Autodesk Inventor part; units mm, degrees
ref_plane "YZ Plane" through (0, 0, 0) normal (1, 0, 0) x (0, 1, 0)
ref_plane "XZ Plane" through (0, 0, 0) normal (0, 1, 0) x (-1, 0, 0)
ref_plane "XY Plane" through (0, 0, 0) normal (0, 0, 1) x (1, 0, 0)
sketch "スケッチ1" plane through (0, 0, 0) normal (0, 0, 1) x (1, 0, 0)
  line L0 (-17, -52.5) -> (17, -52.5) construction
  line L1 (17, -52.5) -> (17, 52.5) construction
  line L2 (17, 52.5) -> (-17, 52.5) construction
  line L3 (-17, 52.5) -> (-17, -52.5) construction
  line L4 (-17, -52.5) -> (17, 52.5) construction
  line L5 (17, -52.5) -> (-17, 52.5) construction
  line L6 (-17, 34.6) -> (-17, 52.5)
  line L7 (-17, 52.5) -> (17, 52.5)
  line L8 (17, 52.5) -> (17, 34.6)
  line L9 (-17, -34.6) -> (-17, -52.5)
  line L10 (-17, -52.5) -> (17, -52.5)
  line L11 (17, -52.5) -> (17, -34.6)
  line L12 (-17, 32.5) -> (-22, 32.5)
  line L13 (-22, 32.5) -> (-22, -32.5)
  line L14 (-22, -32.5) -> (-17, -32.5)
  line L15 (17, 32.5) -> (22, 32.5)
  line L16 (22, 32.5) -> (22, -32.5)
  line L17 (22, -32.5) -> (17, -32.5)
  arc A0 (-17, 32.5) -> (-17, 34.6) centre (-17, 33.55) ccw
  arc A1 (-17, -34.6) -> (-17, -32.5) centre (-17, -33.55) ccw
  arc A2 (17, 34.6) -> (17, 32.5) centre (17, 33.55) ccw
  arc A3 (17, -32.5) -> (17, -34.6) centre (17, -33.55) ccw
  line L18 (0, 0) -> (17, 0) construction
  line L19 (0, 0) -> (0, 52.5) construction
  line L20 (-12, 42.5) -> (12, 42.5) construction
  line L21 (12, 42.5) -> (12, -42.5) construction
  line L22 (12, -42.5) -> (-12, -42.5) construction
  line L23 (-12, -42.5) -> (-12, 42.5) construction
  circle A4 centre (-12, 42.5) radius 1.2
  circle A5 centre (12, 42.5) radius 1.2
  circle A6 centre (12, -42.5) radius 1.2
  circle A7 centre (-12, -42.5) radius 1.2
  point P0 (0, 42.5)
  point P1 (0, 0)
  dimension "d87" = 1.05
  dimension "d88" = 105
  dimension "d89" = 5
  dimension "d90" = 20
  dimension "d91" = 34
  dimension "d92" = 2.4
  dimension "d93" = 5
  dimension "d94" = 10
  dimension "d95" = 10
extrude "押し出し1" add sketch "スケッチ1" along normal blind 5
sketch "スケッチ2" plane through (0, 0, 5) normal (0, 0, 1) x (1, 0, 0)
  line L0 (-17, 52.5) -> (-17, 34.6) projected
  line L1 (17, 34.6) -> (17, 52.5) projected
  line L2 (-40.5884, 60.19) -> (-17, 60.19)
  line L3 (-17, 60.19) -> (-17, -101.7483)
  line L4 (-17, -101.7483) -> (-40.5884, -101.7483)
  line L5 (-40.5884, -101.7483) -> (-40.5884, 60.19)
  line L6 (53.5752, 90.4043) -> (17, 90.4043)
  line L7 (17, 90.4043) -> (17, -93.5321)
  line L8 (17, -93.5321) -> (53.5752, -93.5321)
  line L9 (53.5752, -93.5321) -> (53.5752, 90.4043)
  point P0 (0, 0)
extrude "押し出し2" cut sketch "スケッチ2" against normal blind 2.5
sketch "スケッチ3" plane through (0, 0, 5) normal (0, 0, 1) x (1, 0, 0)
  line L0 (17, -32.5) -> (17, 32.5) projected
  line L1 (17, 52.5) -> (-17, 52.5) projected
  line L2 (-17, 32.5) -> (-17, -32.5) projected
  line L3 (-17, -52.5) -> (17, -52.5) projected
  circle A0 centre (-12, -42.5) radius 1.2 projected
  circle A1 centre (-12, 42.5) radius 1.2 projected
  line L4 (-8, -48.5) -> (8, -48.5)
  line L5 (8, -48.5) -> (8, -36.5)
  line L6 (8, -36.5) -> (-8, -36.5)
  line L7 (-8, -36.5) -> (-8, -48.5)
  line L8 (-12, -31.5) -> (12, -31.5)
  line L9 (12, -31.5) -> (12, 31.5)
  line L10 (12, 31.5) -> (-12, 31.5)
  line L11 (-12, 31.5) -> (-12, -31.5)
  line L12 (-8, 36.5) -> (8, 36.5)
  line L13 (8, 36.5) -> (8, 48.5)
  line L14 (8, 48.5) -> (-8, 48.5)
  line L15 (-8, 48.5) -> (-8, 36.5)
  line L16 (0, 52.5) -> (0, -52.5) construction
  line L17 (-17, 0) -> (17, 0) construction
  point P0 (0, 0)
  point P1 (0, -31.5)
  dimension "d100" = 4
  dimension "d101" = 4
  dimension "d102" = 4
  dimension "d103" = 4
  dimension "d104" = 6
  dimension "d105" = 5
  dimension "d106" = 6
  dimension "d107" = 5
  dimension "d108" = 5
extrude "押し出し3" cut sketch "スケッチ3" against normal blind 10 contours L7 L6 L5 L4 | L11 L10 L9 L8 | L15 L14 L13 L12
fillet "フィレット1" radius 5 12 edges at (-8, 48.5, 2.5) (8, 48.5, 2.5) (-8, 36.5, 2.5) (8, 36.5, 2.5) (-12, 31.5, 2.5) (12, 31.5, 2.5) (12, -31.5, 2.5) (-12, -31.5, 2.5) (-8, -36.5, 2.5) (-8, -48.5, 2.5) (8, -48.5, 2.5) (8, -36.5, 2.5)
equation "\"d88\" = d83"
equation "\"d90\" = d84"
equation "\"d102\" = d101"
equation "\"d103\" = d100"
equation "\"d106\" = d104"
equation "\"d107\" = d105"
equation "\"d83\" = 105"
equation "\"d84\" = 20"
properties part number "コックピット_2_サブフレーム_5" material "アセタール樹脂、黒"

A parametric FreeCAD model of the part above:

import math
import FreeCAD as App
import Part
import Sketcher
Q = App.Units.Quantity


def edges_at(feature, points):
    """Names of the edges that pass closest to the given points."""
    edges = feature.Shape.Edges
    near = lambda p: min(range(len(edges)), key=lambda i: edges[i].distToShape(Part.Vertex(*p))[0])
    return sorted({f"Edge{near(p) + 1}" for p in points})

doc = App.newDocument("Part")
body = doc.addObject("PartDesign::Body", "Body")

sketch1 = body.newObject("Sketcher::SketchObject", "Sketch")
sketch1.AttachmentSupport = (doc.getObject("XY_Plane"), [""])
sketch1.MapMode = "FlatFace"
sketch1.addGeometry(Part.LineSegment(App.Vector(-17, 52.5, 0), App.Vector(-17, 34.6, 0)), False)
sketch1.addGeometry(Part.ArcOfCircle(Part.Circle(App.Vector(-17, 33.55, 0), App.Vector(0, 0, 1), 1.05), math.radians(-90), math.radians(90)), False)
sketch1.addGeometry(Part.LineSegment(App.Vector(-17, 32.5, 0), App.Vector(-22, 32.5, 0)), False)
sketch1.addGeometry(Part.LineSegment(App.Vector(-22, 32.5, 0), App.Vector(-22, -32.5, 0)), False)
sketch1.addGeometry(Part.LineSegment(App.Vector(-22, -32.5, 0), App.Vector(-17, -32.5, 0)), False)
sketch1.addGeometry(Part.ArcOfCircle(Part.Circle(App.Vector(-17, -33.55, 0), App.Vector(0, 0, 1), 1.05), math.radians(-90), math.radians(90)), False)
sketch1.addGeometry(Part.LineSegment(App.Vector(-17, -34.6, 0), App.Vector(-17, -52.5, 0)), False)
sketch1.addGeometry(Part.LineSegment(App.Vector(-17, -52.5, 0), App.Vector(17, -52.5, 0)), False)
sketch1.addGeometry(Part.LineSegment(App.Vector(17, -52.5, 0), App.Vector(17, -34.6, 0)), False)
sketch1.addGeometry(Part.ArcOfCircle(Part.Circle(App.Vector(17, -33.55, 0), App.Vector(0, 0, 1), 1.05), math.radians(90), math.radians(270)), False)
sketch1.addGeometry(Part.LineSegment(App.Vector(17, -32.5, 0), App.Vector(22, -32.5, 0)), False)
sketch1.addGeometry(Part.LineSegment(App.Vector(22, -32.5, 0), App.Vector(22, 32.5, 0)), False)
sketch1.addGeometry(Part.LineSegment(App.Vector(22, 32.5, 0), App.Vector(17, 32.5, 0)), False)
sketch1.addGeometry(Part.ArcOfCircle(Part.Circle(App.Vector(17, 33.55, 0), App.Vector(0, 0, 1), 1.05), math.radians(90), math.radians(270)), False)
sketch1.addGeometry(Part.LineSegment(App.Vector(17, 34.6, 0), App.Vector(17, 52.5, 0)), False)
sketch1.addGeometry(Part.LineSegment(App.Vector(17, 52.5, 0), App.Vector(-17, 52.5, 0)), False)
sketch1.addGeometry(Part.Circle(App.Vector(-12, -42.5, 0), App.Vector(0, 0, 1), 1.2), False)
sketch1.addGeometry(Part.Circle(App.Vector(12, -42.5, 0), App.Vector(0, 0, 1), 1.2), False)
sketch1.addGeometry(Part.Circle(App.Vector(-12, 42.5, 0), App.Vector(0, 0, 1), 1.2), False)
sketch1.addGeometry(Part.Circle(App.Vector(12, 42.5, 0), App.Vector(0, 0, 1), 1.2), False)
sketch1.addConstraint(Sketcher.Constraint("Coincident", 0, 2, 1, 2))
sketch1.addConstraint(Sketcher.Constraint("Tangent", 1, 1, 2, 1))
sketch1.addConstraint(Sketcher.Constraint("Coincident", 2, 2, 3, 1))
sketch1.addConstraint(Sketcher.Constraint("Coincident", 3, 2, 4, 1))
sketch1.addConstraint(Sketcher.Constraint("Tangent", 4, 2, 5, 2))
sketch1.addConstraint(Sketcher.Constraint("Coincident", 5, 1, 6, 1))
sketch1.addConstraint(Sketcher.Constraint("Coincident", 6, 2, 7, 1))
sketch1.addConstraint(Sketcher.Constraint("Coincident", 7, 2, 8, 1))
sketch1.addConstraint(Sketcher.Constraint("Coincident", 8, 2, 9, 2))
sketch1.addConstraint(Sketcher.Constraint("Tangent", 9, 1, 10, 1))
sketch1.addConstraint(Sketcher.Constraint("Coincident", 10, 2, 11, 1))
sketch1.addConstraint(Sketcher.Constraint("Coincident", 11, 2, 12, 1))
sketch1.addConstraint(Sketcher.Constraint("Tangent", 12, 2, 13, 2))
sketch1.addConstraint(Sketcher.Constraint("Coincident", 13, 1, 14, 1))
sketch1.addConstraint(Sketcher.Constraint("Coincident", 14, 2, 15, 1))
sketch1.addConstraint(Sketcher.Constraint("Coincident", 15, 2, 0, 1))
sketch1.addConstraint(Sketcher.Constraint("Vertical", 0))
sketch1.addConstraint(Sketcher.Constraint("Horizontal", 2))
sketch1.addConstraint(Sketcher.Constraint("Vertical", 3))
sketch1.addConstraint(Sketcher.Constraint("Horizontal", 4))
sketch1.addConstraint(Sketcher.Constraint("Vertical", 6))
sketch1.addConstraint(Sketcher.Constraint("Horizontal", 7))
sketch1.addConstraint(Sketcher.Constraint("Vertical", 8))
sketch1.addConstraint(Sketcher.Constraint("Horizontal", 10))
sketch1.addConstraint(Sketcher.Constraint("Vertical", 11))
sketch1.addConstraint(Sketcher.Constraint("Horizontal", 12))
sketch1.addConstraint(Sketcher.Constraint("Vertical", 14))
sketch1.addConstraint(Sketcher.Constraint("Horizontal", 15))
sketch1.addConstraint(Sketcher.Constraint("Equal", 1, 5))
sketch1.addConstraint(Sketcher.Constraint("Equal", 5, 9))
sketch1.addConstraint(Sketcher.Constraint("Equal", 9, 13))
sketch1.addConstraint(Sketcher.Constraint("Equal", 16, 17))
sketch1.addConstraint(Sketcher.Constraint("Equal", 17, 18))
sketch1.addConstraint(Sketcher.Constraint("Equal", 18, 19))
sketch1.addConstraint(Sketcher.Constraint("Symmetric", 1, 3, 9, 3, -1, 1))
sketch1.addConstraint(Sketcher.Constraint("Symmetric", 5, 3, 13, 3, -1, 1))
sketch1.addConstraint(Sketcher.Constraint("Symmetric", 17, 3, 18, 3, -1, 1))
sketch1.addConstraint(Sketcher.Constraint("Symmetric", 16, 3, 19, 3, -1, 1))
sketch1.addConstraint(Sketcher.Constraint("Symmetric", 6, 2, 14, 2, -1, 1))
sketch1.addConstraint(Sketcher.Constraint("Symmetric", 5, 3, 9, 3, -2))
sketch1.addConstraint(Sketcher.Constraint("Symmetric", 16, 3, 17, 3, -2))
sketch1.addConstraint(Sketcher.Constraint("Vertical", 5, 3, 0, 2))
sketch1.addConstraint(Sketcher.Constraint("Vertical", 4, 2, 5, 1))
sketch1.addConstraint(Sketcher.Constraint("Vertical", 13, 3, 7, 2))
sketch1.addConstraint(Sketcher.Constraint("Equal", 4, 10))
sketch1.addConstraint(Sketcher.Constraint("Diameter", 16, Q("2.4 mm")))
sketch1.addConstraint(Sketcher.Constraint("DistanceX", 2, 2, 2, 1, Q("5 mm")))
sketch1.addConstraint(Sketcher.Constraint("DistanceX", 7, 1, 7, 2, Q("34 mm")))
sketch1.addConstraint(Sketcher.Constraint("Radius", 1, Q("1.05 mm")))
sketch1.addConstraint(Sketcher.Constraint("DistanceX", 5, 3, 16, 3, Q("5 mm")))
sketch1.addConstraint(Sketcher.Constraint("DistanceY", 1, 1, 18, 3, Q("10 mm")))
sketch1.addConstraint(Sketcher.Constraint("DistanceY", 6, 2, 16, 3, Q("10 mm")))
sketch1.addConstraint(Sketcher.Constraint("DistanceY", 3, 2, 3, 1, Q("65 mm")))
pad1 = body.newObject("PartDesign::Pad", "Pad")
pad1.Profile = sketch1
pad1.Length = 5

sketch2 = body.newObject("Sketcher::SketchObject", "Sketch001")
sketch2.AttachmentSupport = (doc.getObject("XY_Plane"), [""])
sketch2.MapMode = "FlatFace"
sketch2.AttachmentOffset = App.Placement(App.Vector(0, 0, 5), App.Rotation())
sketch2.addGeometry(Part.LineSegment(App.Vector(-17, -101.7483, 0), App.Vector(-17, 60.19, 0)), False)
sketch2.addGeometry(Part.LineSegment(App.Vector(-17, 60.19, 0), App.Vector(-40.5884, 60.19, 0)), False)
sketch2.addGeometry(Part.LineSegment(App.Vector(-40.5884, 60.19, 0), App.Vector(-40.5884, -101.7483, 0)), False)
sketch2.addGeometry(Part.LineSegment(App.Vector(-40.5884, -101.7483, 0), App.Vector(-17, -101.7483, 0)), False)
sketch2.addGeometry(Part.LineSegment(App.Vector(17, 90.4043, 0), App.Vector(17, -93.5321, 0)), False)
sketch2.addGeometry(Part.LineSegment(App.Vector(17, -93.5321, 0), App.Vector(53.5752, -93.5321, 0)), False)
sketch2.addGeometry(Part.LineSegment(App.Vector(53.5752, -93.5321, 0), App.Vector(53.5752, 90.4043, 0)), False)
sketch2.addGeometry(Part.LineSegment(App.Vector(53.5752, 90.4043, 0), App.Vector(17, 90.4043, 0)), False)
sketch2.addConstraint(Sketcher.Constraint("Coincident", 0, 2, 1, 1))
sketch2.addConstraint(Sketcher.Constraint("Coincident", 1, 2, 2, 1))
sketch2.addConstraint(Sketcher.Constraint("Coincident", 2, 2, 3, 1))
sketch2.addConstraint(Sketcher.Constraint("Coincident", 3, 2, 0, 1))
sketch2.addConstraint(Sketcher.Constraint("Coincident", 4, 2, 5, 1))
sketch2.addConstraint(Sketcher.Constraint("Coincident", 5, 2, 6, 1))
sketch2.addConstraint(Sketcher.Constraint("Coincident", 6, 2, 7, 1))
sketch2.addConstraint(Sketcher.Constraint("Coincident", 7, 2, 4, 1))
sketch2.addConstraint(Sketcher.Constraint("Vertical", 0))
sketch2.addConstraint(Sketcher.Constraint("Horizontal", 1))
sketch2.addConstraint(Sketcher.Constraint("Vertical", 2))
sketch2.addConstraint(Sketcher.Constraint("Horizontal", 3))
sketch2.addConstraint(Sketcher.Constraint("Vertical", 4))
sketch2.addConstraint(Sketcher.Constraint("Horizontal", 5))
sketch2.addConstraint(Sketcher.Constraint("Vertical", 6))
sketch2.addConstraint(Sketcher.Constraint("Horizontal", 7))
sketch2.addConstraint(Sketcher.Constraint("DistanceX", 0, 2, -1, 1, Q("17 mm")))
sketch2.addConstraint(Sketcher.Constraint("DistanceX", -1, 1, 4, 2, Q("17 mm")))
sketch2.addConstraint(Sketcher.Constraint("DistanceY", -1, 1, 0, 2, Q("60.19 mm")))
sketch2.addConstraint(Sketcher.Constraint("DistanceX", 1, 2, 1, 1, Q("23.5884 mm")))
sketch2.addConstraint(Sketcher.Constraint("DistanceX", 5, 1, 5, 2, Q("36.5752 mm")))
sketch2.addConstraint(Sketcher.Constraint("DistanceY", 0, 1, 0, 2, Q("161.9383 mm")))
sketch2.addConstraint(Sketcher.Constraint("DistanceY", 4, 2, 4, 1, Q("183.9364 mm")))
sketch2.addConstraint(Sketcher.Constraint("DistanceY", 4, 2, -1, 1, Q("93.532 mm")))
pocket1 = body.newObject("PartDesign::Pocket", "Pocket")
pocket1.Profile = sketch2
pocket1.Length = 2.5

sketch3 = body.newObject("Sketcher::SketchObject", "Sketch002")
sketch3.AttachmentSupport = (doc.getObject("XY_Plane"), [""])
sketch3.MapMode = "FlatFace"
sketch3.AttachmentOffset = App.Placement(App.Vector(0, 0, 5), App.Rotation())
sketch3.addGeometry(Part.LineSegment(App.Vector(-8, -36.5, 0), App.Vector(-8, -48.5, 0)), False)
sketch3.addGeometry(Part.LineSegment(App.Vector(-8, -48.5, 0), App.Vector(8, -48.5, 0)), False)
sketch3.addGeometry(Part.LineSegment(App.Vector(8, -48.5, 0), App.Vector(8, -36.5, 0)), False)
sketch3.addGeometry(Part.LineSegment(App.Vector(8, -36.5, 0), App.Vector(-8, -36.5, 0)), False)
sketch3.addGeometry(Part.LineSegment(App.Vector(-12, 31.5, 0), App.Vector(-12, -31.5, 0)), False)
sketch3.addGeometry(Part.LineSegment(App.Vector(-12, -31.5, 0), App.Vector(12, -31.5, 0)), False)
sketch3.addGeometry(Part.LineSegment(App.Vector(12, -31.5, 0), App.Vector(12, 31.5, 0)), False)
sketch3.addGeometry(Part.LineSegment(App.Vector(12, 31.5, 0), App.Vector(-12, 31.5, 0)), False)
sketch3.addGeometry(Part.LineSegment(App.Vector(-8, 48.5, 0), App.Vector(-8, 36.5, 0)), False)
sketch3.addGeometry(Part.LineSegment(App.Vector(-8, 36.5, 0), App.Vector(8, 36.5, 0)), False)
sketch3.addGeometry(Part.LineSegment(App.Vector(8, 36.5, 0), App.Vector(8, 48.5, 0)), False)
sketch3.addGeometry(Part.LineSegment(App.Vector(8, 48.5, 0), App.Vector(-8, 48.5, 0)), False)
sketch3.addConstraint(Sketcher.Constraint("Coincident", 0, 2, 1, 1))
sketch3.addConstraint(Sketcher.Constraint("Coincident", 1, 2, 2, 1))
sketch3.addConstraint(Sketcher.Constraint("Coincident", 2, 2, 3, 1))
sketch3.addConstraint(Sketcher.Constraint("Coincident", 3, 2, 0, 1))
sketch3.addConstraint(Sketcher.Constraint("Coincident", 4, 2, 5, 1))
sketch3.addConstraint(Sketcher.Constraint("Coincident", 5, 2, 6, 1))
sketch3.addConstraint(Sketcher.Constraint("Coincident", 6, 2, 7, 1))
sketch3.addConstraint(Sketcher.Constraint("Coincident", 7, 2, 4, 1))
sketch3.addConstraint(Sketcher.Constraint("Coincident", 8, 2, 9, 1))
sketch3.addConstraint(Sketcher.Constraint("Coincident", 9, 2, 10, 1))
sketch3.addConstraint(Sketcher.Constraint("Coincident", 10, 2, 11, 1))
sketch3.addConstraint(Sketcher.Constraint("Coincident", 11, 2, 8, 1))
sketch3.addConstraint(Sketcher.Constraint("Vertical", 0))
sketch3.addConstraint(Sketcher.Constraint("Horizontal", 1))
sketch3.addConstraint(Sketcher.Constraint("Vertical", 2))
sketch3.addConstraint(Sketcher.Constraint("Horizontal", 3))
sketch3.addConstraint(Sketcher.Constraint("Vertical", 4))
sketch3.addConstraint(Sketcher.Constraint("Horizontal", 5))
sketch3.addConstraint(Sketcher.Constraint("Vertical", 6))
sketch3.addConstraint(Sketcher.Constraint("Horizontal", 7))
sketch3.addConstraint(Sketcher.Constraint("Vertical", 8))
sketch3.addConstraint(Sketcher.Constraint("Horizontal", 9))
sketch3.addConstraint(Sketcher.Constraint("Vertical", 10))
sketch3.addConstraint(Sketcher.Constraint("Horizontal", 11))
sketch3.addConstraint(Sketcher.Constraint("Symmetric", 4, 2, 6, 2, -1, 1))
sketch3.addConstraint(Sketcher.Constraint("Symmetric", 2, 2, 8, 2, -1, 1))
sketch3.addConstraint(Sketcher.Constraint("Symmetric", 0, 2, 10, 2, -1, 1))
sketch3.addConstraint(Sketcher.Constraint("Vertical", 3, 2, 8, 2))
sketch3.addConstraint(Sketcher.Constraint("DistanceX", 4, 2, 3, 2, Q("4 mm")))
sketch3.addConstraint(Sketcher.Constraint("DistanceY", 3, 2, 4, 2, Q("5 mm")))
sketch3.addConstraint(Sketcher.Constraint("DistanceX", 1, 1, 1, 2, Q("16 mm")))
sketch3.addConstraint(Sketcher.Constraint("DistanceY", 0, 2, 0, 1, Q("12 mm")))
sketch3.addConstraint(Sketcher.Constraint("DistanceY", 4, 2, 4, 1, Q("63 mm")))
pocket2 = body.newObject("PartDesign::Pocket", "Pocket001")
pocket2.Profile = sketch3
pocket2.Length = 10
doc.recompute()

fillet = body.newObject("PartDesign::Fillet", "Fillet")
fillet.Base = (pocket2, edges_at(pocket2, [
    (-8, 48.5, 2.5),
    (8, 48.5, 2.5),
    (-8, 36.5, 2.5),
    (8, 36.5, 2.5),
    (-12, 31.5, 2.5),
    (12, 31.5, 2.5),
    (12, -31.5, 2.5),
    (-12, -31.5, 2.5),
    (-8, -36.5, 2.5),
    (-8, -48.5, 2.5),
    (8, -48.5, 2.5),
    (8, -36.5, 2.5),
]))
fillet.Radius = 5

doc.recompute()
